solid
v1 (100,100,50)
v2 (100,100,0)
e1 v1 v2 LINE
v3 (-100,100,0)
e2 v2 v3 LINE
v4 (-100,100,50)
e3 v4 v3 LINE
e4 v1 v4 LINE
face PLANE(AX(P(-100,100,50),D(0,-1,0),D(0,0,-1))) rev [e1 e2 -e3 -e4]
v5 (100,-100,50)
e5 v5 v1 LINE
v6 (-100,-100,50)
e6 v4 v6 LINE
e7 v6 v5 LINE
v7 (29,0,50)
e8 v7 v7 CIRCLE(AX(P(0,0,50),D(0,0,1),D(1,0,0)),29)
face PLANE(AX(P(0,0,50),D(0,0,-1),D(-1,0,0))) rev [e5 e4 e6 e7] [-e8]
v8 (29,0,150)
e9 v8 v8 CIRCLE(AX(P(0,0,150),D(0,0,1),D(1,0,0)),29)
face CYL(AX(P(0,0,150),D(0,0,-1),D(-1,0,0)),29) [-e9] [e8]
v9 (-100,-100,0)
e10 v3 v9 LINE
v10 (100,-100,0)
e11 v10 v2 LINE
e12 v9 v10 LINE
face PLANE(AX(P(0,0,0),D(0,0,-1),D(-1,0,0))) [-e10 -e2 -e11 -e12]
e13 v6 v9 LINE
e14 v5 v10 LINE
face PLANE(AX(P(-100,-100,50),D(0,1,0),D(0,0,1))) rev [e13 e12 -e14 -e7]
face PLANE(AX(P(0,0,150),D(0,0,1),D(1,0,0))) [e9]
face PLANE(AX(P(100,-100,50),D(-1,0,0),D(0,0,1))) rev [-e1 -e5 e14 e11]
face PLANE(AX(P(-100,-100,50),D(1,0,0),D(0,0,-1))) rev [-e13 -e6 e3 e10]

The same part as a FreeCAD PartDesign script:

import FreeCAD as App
import Part
import Sketcher

doc = App.newDocument("Part")
params = doc.addObject("Spreadsheet::Sheet", "Params")
for row, (alias, value) in enumerate([
    ("sketch1_width", "200 mm"),
    ("pad1_length", "50 mm"),
    ("sketch2_diameter", "58 mm"),
    ("pad2_length", "100 mm"),
], start=1):
    params.set(f"A{row}", alias)
    params.set(f"B{row}", "=" + value)
    params.setAlias(f"B{row}", alias)

body = doc.addObject("PartDesign::Body", "Body")

# Sketch on XY plane
sketch1 = doc.addObject("Sketcher::SketchObject", "Sketch")
body.addObject(sketch1)
sketch1.AttachmentSupport = (doc.XY_Plane, [""])
sketch1.MapMode = "FlatFace"
sketch1.addGeometry(Part.LineSegment(App.Vector(-100, 100, 0), App.Vector(-100, -100, 0)), False)
sketch1.addGeometry(Part.LineSegment(App.Vector(-100, -100, 0), App.Vector(100, -100, 0)), False)
sketch1.addGeometry(Part.LineSegment(App.Vector(100, -100, 0), App.Vector(100, 100, 0)), False)
sketch1.addGeometry(Part.LineSegment(App.Vector(100, 100, 0), App.Vector(-100, 100, 0)), False)
sketch1.addConstraint(Sketcher.Constraint("Coincident", 0, 2, 1, 1))
sketch1.addConstraint(Sketcher.Constraint("Coincident", 1, 2, 2, 1))
sketch1.addConstraint(Sketcher.Constraint("Coincident", 2, 2, 3, 1))
sketch1.addConstraint(Sketcher.Constraint("Coincident", 3, 2, 0, 1))
sketch1.addConstraint(Sketcher.Constraint("Vertical", 0))
sketch1.addConstraint(Sketcher.Constraint("Horizontal", 1))
sketch1.addConstraint(Sketcher.Constraint("Vertical", 2))
sketch1.addConstraint(Sketcher.Constraint("Horizontal", 3))
sketch1.addConstraint(Sketcher.Constraint("Symmetric", 0, 2, 2, 2, -1, 1))
sketch1.addConstraint(Sketcher.Constraint("Equal", 3, 0))
sketch1.addConstraint(Sketcher.Constraint("DistanceX", 1, 1, 1, 2, 200.0))
sketch1.setExpression("Constraints[10]", "Params.sketch1_width")
pad1 = doc.addObject("PartDesign::Pad", "Pad")
body.addObject(pad1)
pad1.Profile = sketch1
pad1.setExpression("Length", "Params.pad1_length")

# Sketch on XY plane
sketch2 = doc.addObject("Sketcher::SketchObject", "Sketch001")
body.addObject(sketch2)
sketch2.AttachmentSupport = (doc.XY_Plane, [""])
sketch2.MapMode = "FlatFace"
sketch2.AttachmentOffset = App.Placement(App.Vector(0, 0, 50), App.Rotation())
sketch2.addGeometry(Part.Circle(App.Vector(0, 0, 0), App.Vector(0, 0, 1), 29), False)
sketch2.addConstraint(Sketcher.Constraint("Coincident", 0, 3, -1, 1))
sketch2.addConstraint(Sketcher.Constraint("Diameter", 0, 58.0))
sketch2.setExpression("Constraints[1]", "Params.sketch2_diameter")
pad2 = doc.addObject("PartDesign::Pad", "Pad001")
body.addObject(pad2)
pad2.Profile = sketch2
pad2.setExpression("Length", "Params.pad2_length")

doc.recompute()
